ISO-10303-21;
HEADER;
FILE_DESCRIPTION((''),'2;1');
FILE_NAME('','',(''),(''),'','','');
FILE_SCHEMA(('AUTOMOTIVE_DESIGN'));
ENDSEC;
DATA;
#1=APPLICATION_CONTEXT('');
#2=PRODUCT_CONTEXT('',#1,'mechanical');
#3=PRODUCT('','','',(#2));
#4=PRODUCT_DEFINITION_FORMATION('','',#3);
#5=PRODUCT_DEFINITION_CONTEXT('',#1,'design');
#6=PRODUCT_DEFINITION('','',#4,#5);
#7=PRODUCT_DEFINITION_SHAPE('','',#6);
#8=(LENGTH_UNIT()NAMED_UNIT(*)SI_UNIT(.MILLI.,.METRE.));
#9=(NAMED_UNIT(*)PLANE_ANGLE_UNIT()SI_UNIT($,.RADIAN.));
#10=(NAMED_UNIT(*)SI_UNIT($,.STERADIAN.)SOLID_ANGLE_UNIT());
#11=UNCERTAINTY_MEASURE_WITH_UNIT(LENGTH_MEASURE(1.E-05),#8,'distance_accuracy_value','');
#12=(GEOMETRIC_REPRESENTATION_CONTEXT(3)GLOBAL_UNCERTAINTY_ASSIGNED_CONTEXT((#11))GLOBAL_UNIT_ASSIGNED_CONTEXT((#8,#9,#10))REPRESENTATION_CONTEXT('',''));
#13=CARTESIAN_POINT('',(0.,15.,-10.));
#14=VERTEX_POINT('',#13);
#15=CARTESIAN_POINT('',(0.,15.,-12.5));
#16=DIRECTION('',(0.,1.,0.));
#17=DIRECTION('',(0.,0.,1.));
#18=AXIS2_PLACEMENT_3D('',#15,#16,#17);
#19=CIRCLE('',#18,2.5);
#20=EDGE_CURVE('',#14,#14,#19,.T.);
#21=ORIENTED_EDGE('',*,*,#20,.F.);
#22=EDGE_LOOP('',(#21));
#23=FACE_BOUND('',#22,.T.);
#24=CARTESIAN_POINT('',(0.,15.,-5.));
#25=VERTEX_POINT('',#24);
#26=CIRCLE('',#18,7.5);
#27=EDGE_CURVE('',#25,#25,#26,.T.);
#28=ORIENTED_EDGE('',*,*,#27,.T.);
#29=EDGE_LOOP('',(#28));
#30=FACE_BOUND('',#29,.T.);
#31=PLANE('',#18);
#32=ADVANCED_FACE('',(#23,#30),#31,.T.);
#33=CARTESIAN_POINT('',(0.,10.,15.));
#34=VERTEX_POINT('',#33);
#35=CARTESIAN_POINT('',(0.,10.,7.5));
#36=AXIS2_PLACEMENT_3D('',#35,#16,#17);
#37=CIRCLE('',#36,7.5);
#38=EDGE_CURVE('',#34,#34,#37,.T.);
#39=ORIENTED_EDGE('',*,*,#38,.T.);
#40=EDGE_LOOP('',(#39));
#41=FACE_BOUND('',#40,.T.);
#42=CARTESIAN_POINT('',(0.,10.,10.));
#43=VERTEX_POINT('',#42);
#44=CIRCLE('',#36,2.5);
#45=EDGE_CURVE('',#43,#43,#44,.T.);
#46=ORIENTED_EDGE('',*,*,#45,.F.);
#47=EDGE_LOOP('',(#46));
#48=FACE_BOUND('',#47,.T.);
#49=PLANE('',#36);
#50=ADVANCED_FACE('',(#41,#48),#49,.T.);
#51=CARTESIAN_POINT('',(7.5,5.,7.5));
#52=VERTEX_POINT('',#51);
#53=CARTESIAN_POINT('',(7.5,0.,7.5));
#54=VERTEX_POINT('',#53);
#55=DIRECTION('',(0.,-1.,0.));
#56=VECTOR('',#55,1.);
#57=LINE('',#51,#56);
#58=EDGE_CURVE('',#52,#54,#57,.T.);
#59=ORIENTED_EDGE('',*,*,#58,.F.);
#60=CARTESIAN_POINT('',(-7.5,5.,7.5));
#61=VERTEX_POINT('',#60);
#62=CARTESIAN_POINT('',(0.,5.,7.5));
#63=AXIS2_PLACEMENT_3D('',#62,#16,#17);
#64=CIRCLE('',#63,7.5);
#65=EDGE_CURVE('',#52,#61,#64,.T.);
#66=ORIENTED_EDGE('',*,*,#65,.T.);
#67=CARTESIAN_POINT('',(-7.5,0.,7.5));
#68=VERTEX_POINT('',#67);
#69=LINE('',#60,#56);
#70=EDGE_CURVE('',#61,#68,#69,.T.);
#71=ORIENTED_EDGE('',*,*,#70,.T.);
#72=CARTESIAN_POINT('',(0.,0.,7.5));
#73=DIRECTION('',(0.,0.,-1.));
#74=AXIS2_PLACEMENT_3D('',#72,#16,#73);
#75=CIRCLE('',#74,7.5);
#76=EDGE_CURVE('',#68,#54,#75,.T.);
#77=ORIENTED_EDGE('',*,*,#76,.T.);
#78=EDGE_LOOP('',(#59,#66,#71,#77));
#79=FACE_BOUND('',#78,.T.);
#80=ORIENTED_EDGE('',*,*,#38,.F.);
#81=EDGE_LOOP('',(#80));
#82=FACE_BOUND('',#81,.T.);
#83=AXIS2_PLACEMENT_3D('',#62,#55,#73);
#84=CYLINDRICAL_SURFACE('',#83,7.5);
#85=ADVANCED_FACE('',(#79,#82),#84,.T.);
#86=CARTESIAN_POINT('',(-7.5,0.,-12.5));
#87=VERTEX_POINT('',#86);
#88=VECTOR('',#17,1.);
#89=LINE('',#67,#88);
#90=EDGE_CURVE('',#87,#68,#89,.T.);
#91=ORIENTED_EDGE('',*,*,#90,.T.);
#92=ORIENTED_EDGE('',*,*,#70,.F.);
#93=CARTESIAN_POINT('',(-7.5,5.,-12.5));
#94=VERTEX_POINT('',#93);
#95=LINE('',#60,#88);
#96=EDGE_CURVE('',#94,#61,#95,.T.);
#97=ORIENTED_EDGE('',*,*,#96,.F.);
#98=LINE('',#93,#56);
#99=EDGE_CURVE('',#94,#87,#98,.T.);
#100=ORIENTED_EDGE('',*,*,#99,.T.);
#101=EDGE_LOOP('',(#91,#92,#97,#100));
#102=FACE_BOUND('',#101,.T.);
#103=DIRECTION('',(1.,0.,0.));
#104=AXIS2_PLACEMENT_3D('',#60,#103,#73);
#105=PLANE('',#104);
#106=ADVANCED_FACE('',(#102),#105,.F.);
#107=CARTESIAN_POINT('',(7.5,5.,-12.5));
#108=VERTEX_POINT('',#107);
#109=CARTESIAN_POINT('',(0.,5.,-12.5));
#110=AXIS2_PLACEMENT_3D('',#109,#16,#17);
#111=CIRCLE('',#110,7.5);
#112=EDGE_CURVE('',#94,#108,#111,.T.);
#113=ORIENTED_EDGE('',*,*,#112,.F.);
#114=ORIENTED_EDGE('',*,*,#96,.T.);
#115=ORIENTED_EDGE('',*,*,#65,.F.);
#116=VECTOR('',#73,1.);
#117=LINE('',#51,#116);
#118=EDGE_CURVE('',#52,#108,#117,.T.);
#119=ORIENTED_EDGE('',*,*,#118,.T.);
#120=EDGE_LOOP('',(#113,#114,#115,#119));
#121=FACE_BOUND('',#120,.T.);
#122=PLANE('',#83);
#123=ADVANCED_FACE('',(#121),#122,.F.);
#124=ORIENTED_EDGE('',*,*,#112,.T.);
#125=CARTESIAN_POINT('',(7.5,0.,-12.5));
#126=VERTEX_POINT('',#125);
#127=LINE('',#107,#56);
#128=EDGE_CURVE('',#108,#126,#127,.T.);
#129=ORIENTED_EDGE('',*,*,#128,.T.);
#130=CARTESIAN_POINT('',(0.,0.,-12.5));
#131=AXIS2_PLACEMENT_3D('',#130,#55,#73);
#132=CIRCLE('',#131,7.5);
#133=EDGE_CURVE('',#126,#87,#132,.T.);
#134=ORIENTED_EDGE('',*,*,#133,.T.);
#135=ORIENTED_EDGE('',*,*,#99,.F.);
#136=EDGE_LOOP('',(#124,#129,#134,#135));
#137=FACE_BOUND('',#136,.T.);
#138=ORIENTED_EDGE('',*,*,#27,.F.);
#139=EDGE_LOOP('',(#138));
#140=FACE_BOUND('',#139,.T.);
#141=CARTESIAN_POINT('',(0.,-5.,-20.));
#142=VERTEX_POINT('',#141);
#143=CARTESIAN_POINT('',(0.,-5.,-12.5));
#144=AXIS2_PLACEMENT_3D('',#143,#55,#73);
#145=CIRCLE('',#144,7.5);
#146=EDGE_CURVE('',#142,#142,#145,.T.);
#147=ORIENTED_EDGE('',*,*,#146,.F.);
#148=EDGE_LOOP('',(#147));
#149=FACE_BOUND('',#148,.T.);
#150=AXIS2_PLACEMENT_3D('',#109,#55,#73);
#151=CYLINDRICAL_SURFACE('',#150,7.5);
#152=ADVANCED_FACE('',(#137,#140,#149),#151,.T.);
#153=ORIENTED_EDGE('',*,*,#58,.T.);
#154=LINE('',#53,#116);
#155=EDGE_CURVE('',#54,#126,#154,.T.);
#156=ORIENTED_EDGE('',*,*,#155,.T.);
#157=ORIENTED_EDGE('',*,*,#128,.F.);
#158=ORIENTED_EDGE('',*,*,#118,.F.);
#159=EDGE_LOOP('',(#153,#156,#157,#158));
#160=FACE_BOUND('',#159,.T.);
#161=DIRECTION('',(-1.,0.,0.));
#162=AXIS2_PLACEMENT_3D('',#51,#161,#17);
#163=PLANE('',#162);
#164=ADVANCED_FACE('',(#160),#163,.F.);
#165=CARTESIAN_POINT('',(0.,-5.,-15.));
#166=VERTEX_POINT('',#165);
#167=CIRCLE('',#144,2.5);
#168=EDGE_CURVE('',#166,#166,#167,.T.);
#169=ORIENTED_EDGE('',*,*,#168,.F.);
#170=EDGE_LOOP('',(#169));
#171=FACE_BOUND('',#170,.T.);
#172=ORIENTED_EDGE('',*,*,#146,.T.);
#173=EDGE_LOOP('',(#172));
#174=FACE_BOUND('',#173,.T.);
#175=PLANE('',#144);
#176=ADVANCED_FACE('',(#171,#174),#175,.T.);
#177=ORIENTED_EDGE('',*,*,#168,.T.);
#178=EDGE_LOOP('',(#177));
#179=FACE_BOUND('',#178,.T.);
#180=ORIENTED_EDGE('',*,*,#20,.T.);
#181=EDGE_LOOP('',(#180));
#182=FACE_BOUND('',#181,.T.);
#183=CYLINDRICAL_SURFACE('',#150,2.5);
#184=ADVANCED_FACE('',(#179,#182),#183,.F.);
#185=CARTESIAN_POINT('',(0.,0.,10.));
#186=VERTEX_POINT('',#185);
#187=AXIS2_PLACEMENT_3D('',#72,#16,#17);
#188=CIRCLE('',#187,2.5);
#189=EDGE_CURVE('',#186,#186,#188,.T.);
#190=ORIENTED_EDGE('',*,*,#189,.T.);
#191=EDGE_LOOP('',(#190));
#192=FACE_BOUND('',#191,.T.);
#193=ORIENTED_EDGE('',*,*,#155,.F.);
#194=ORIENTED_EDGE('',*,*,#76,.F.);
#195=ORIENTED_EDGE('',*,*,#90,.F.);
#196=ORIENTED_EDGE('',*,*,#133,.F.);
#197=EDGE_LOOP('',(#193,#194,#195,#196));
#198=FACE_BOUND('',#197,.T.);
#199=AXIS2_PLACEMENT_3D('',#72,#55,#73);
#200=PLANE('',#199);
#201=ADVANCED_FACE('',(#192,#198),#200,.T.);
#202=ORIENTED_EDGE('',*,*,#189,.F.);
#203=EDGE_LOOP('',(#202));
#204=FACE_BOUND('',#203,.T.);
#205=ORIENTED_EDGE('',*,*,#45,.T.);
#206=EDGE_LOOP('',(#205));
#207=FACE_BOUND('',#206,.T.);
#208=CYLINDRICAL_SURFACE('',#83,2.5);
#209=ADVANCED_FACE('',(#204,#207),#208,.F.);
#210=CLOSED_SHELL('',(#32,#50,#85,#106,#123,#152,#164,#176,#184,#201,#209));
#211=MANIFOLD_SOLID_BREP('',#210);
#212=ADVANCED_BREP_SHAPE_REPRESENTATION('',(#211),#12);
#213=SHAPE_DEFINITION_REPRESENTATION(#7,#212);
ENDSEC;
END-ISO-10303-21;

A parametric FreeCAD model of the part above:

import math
import FreeCAD as App
import Part
import Sketcher
Q = App.Units.Quantity

doc = App.newDocument("Part")
body = doc.addObject("PartDesign::Body", "Body")

sketch1 = body.newObject("Sketcher::SketchObject", "Sketch")
sketch1.AttachmentSupport = (doc.getObject("XZ_Plane"), [""])
sketch1.MapMode = "FlatFace"
sketch1.addGeometry(Part.LineSegment(App.Vector(-7.5, -12.5, 0), App.Vector(-7.5, 7.5, 0)), False)
sketch1.addGeometry(Part.ArcOfCircle(Part.Circle(App.Vector(0, 7.5, 0), App.Vector(0, 0, 1), 7.5), math.radians(0), math.radians(180)), False)
sketch1.addGeometry(Part.LineSegment(App.Vector(7.5, 7.5, 0), App.Vector(7.5, -12.5, 0)), False)
sketch1.addGeometry(Part.ArcOfCircle(Part.Circle(App.Vector(0, -12.5, 0), App.Vector(0, 0, 1), 7.5), math.radians(180), math.radians(360)), False)
sketch1.addGeometry(Part.Circle(App.Vector(0, 7.5, 0), App.Vector(0, 0, 1), 2.5), False)
sketch1.addGeometry(Part.Circle(App.Vector(0, -12.5, 0), App.Vector(0, 0, 1), 2.5), False)
sketch1.addConstraint(Sketcher.Constraint("Tangent", 0, 2, 1, 2))
sketch1.addConstraint(Sketcher.Constraint("Tangent", 1, 1, 2, 1))
sketch1.addConstraint(Sketcher.Constraint("Tangent", 2, 2, 3, 2))
sketch1.addConstraint(Sketcher.Constraint("Tangent", 3, 1, 0, 1))
sketch1.addConstraint(Sketcher.Constraint("Vertical", 0))
sketch1.addConstraint(Sketcher.Constraint("Vertical", 2))
sketch1.addConstraint(Sketcher.Constraint("Coincident", 4, 3, 1, 3))
sketch1.addConstraint(Sketcher.Constraint("Coincident", 5, 3, 3, 3))
sketch1.addConstraint(Sketcher.Constraint("Equal", 4, 5))
sketch1.addConstraint(Sketcher.Constraint("PointOnObject", 1, 3, -2))
sketch1.addConstraint(Sketcher.Constraint("Diameter", 4, Q("5 mm")))
sketch1.addConstraint(Sketcher.Constraint("Radius", 1, Q("7.5 mm")))
sketch1.addConstraint(Sketcher.Constraint("DistanceY", 0, 1, 0, 2, Q("20 mm")))
sketch1.addConstraint(Sketcher.Constraint("DistanceY", -1, 1, 1, 3, Q("7.5 mm")))
pad1 = body.newObject("PartDesign::Pad", "Pad")
pad1.Profile = sketch1
pad1.Length = 5
pad1.Reversed = True

sketch2 = body.newObject("Sketcher::SketchObject", "Sketch001")
sketch2.AttachmentSupport = (doc.getObject("XZ_Plane"), [""])
sketch2.MapMode = "FlatFace"
sketch2.AttachmentOffset = App.Placement(App.Vector(0, 0, -5), App.Rotation())
sketch2.addGeometry(Part.Circle(App.Vector(0, 7.5, 0), App.Vector(0, 0, 1), 7.5), False)
sketch2.addGeometry(Part.Circle(App.Vector(0, 7.5, 0), App.Vector(0, 0, 1), 2.5), False)
sketch2.addConstraint(Sketcher.Constraint("Coincident", 1, 3, 0, 3))
sketch2.addConstraint(Sketcher.Constraint("PointOnObject", 0, 3, -2))
sketch2.addConstraint(Sketcher.Constraint("Diameter", 0, Q("15 mm")))
sketch2.addConstraint(Sketcher.Constraint("Diameter", 1, Q("5 mm")))
sketch2.addConstraint(Sketcher.Constraint("DistanceY", -1, 1, 0, 3, Q("7.5 mm")))
pad2 = body.newObject("PartDesign::Pad", "Pad001")
pad2.Profile = sketch2
pad2.Length = 5
pad2.Reversed = True

sketch3 = body.newObject("Sketcher::SketchObject", "Sketch002")
sketch3.AttachmentSupport = (doc.getObject("XZ_Plane"), [""])
sketch3.MapMode = "FlatFace"
sketch3.AttachmentOffset = App.Placement(App.Vector(0, 0, -5), App.Rotation())
sketch3.addGeometry(Part.Circle(App.Vector(0, -12.5, 0), App.Vector(0, 0, 1), 7.5), False)
sketch3.addGeometry(Part.Circle(App.Vector(0, -12.5, 0), App.Vector(0, 0, 1), 2.5), False)
sketch3.addConstraint(Sketcher.Constraint("Coincident", 1, 3, 0, 3))
sketch3.addConstraint(Sketcher.Constraint("PointOnObject", 0, 3, -2))
sketch3.addConstraint(Sketcher.Constraint("Diameter", 0, Q("15 mm")))
sketch3.addConstraint(Sketcher.Constraint("Diameter", 1, Q("5 mm")))
sketch3.addConstraint(Sketcher.Constraint("DistanceY", 0, 3, -1, 1, Q("12.5 mm")))
pad3 = body.newObject("PartDesign::Pad", "Pad002")
pad3.Profile = sketch3
pad3.Length = 10
pad3.Reversed = True

sketch4 = body.newObject("Sketcher::SketchObject", "Sketch003")
sketch4.AttachmentSupport = (doc.getObject("XZ_Plane"), [""])
sketch4.MapMode = "FlatFace"
sketch4.addGeometry(Part.Circle(App.Vector(0, -12.5, 0), App.Vector(0, 0, 1), 7.5), False)
sketch4.addGeometry(Part.Circle(App.Vector(0, -12.5, 0), App.Vector(0, 0, 1), 2.5), False)
sketch4.addConstraint(Sketcher.Constraint("Coincident", 1, 3, 0, 3))
sketch4.addConstraint(Sketcher.Constraint("PointOnObject", 0, 3, -2))
sketch4.addConstraint(Sketcher.Constraint("Diameter", 0, Q("15 mm")))
sketch4.addConstraint(Sketcher.Constraint("Diameter", 1, Q("5 mm")))
sketch4.addConstraint(Sketcher.Constraint("DistanceY", 0, 3, -1, 1, Q("12.5 mm")))
pad4 = body.newObject("PartDesign::Pad", "Pad003")
pad4.Profile = sketch4
pad4.Length = 5

doc.recompute()
